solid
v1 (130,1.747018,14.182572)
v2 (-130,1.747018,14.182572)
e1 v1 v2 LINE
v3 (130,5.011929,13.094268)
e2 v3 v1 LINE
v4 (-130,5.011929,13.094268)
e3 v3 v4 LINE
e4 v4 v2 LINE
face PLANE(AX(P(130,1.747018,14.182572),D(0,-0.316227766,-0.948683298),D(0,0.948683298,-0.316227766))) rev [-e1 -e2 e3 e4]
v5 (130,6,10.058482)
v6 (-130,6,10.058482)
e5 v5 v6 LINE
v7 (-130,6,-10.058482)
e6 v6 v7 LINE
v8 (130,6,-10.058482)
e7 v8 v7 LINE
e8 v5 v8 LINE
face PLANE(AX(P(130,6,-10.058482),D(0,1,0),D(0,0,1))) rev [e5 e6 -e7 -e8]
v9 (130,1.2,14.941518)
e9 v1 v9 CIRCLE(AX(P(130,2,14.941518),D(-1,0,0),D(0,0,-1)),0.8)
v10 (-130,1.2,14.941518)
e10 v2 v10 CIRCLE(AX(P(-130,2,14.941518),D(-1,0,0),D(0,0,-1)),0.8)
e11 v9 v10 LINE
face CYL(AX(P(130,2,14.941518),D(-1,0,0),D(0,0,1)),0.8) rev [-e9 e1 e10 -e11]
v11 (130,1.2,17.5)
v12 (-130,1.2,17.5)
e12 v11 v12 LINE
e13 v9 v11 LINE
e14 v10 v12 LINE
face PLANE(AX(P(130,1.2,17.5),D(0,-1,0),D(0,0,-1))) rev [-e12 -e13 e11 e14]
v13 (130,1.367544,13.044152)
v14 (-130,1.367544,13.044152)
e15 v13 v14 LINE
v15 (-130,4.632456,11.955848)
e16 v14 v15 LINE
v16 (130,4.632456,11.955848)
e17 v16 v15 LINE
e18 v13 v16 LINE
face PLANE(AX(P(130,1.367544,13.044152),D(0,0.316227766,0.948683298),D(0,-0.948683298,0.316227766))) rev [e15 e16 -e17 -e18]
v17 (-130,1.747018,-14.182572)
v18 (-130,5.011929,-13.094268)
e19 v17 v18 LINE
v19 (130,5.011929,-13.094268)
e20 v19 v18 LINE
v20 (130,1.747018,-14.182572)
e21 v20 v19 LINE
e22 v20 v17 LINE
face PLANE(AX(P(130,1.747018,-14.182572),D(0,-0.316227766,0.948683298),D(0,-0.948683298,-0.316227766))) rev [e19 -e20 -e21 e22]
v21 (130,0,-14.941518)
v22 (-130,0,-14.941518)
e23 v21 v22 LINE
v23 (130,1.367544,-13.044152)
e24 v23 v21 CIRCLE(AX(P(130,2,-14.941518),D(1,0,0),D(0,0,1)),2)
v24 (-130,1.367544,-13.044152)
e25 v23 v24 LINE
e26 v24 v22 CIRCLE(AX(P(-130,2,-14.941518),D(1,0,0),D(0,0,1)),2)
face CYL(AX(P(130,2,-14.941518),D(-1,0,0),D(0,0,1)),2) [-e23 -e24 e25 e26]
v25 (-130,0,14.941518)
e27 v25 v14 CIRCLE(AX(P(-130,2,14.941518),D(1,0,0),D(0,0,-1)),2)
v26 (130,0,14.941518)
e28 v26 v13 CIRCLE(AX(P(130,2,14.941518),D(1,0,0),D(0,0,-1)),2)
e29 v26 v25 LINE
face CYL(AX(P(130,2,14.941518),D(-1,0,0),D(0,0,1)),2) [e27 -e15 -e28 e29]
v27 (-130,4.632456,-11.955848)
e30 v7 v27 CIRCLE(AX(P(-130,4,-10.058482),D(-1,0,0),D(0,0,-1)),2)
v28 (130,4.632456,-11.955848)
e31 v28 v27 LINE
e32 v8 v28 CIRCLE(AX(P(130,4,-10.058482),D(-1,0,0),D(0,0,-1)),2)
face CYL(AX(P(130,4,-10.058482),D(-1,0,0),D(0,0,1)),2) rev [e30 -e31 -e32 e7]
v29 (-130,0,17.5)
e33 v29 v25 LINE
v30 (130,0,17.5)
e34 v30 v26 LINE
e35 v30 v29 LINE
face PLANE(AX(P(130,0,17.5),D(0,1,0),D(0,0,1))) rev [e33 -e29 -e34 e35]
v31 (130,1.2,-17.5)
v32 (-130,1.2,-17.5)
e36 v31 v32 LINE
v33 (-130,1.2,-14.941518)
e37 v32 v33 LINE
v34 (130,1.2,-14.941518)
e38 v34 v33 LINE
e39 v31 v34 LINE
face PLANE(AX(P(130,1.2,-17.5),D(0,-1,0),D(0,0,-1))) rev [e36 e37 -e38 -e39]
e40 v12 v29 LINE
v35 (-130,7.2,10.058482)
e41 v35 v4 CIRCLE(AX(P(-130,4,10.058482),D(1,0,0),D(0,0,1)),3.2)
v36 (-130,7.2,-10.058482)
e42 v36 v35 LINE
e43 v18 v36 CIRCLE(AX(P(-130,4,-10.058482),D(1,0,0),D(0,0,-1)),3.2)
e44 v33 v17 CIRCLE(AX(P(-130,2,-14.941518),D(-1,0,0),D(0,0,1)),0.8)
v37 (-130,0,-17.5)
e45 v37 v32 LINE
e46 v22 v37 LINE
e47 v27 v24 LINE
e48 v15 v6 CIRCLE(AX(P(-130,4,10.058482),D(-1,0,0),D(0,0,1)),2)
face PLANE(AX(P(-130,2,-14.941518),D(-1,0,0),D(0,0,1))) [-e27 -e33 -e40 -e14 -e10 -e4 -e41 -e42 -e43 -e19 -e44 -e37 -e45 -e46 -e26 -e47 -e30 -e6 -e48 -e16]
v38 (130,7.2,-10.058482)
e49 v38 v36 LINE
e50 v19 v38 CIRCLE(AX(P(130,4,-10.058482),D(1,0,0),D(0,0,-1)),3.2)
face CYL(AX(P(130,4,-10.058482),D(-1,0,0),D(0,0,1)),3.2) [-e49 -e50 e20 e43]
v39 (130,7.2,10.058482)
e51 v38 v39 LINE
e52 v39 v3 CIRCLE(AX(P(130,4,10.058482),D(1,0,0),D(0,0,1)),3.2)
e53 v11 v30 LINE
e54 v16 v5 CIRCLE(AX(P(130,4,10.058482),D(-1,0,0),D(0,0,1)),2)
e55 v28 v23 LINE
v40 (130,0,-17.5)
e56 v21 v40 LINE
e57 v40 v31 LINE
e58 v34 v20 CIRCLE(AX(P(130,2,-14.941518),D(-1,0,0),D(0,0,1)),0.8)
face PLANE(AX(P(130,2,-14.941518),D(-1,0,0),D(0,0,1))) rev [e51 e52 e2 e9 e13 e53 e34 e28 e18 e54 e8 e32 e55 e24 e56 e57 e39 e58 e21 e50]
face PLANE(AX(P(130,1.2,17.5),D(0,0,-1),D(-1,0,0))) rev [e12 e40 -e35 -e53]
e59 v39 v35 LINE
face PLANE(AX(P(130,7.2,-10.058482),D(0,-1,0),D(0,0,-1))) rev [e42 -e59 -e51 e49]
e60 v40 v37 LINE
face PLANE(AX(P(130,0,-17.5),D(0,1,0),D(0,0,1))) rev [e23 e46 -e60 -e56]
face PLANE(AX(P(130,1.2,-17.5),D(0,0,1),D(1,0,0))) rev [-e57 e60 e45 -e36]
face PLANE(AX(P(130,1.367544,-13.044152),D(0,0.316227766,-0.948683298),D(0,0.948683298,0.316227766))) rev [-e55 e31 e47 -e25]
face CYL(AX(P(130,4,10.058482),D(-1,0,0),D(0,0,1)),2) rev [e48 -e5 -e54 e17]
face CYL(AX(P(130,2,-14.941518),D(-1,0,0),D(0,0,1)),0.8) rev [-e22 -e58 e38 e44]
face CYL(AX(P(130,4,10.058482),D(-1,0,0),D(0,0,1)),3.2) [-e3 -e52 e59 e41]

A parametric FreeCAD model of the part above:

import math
import FreeCAD as App
import Part
import Sketcher

doc = App.newDocument("Part")
body = doc.addObject("PartDesign::Body", "Body")

# Sketch on YZ plane
sketch1 = body.newObject("Sketcher::SketchObject", "Sketch")
sketch1.AttachmentSupport = (doc.getObject("YZ_Plane"), [""])
sketch1.MapMode = "FlatFace"
sketch1.addGeometry(Part.LineSegment(App.Vector(0, -14.941518, 0), App.Vector(0, -17.5, 0)), False)
sketch1.addGeometry(Part.LineSegment(App.Vector(0, -17.5, 0), App.Vector(1.2, -17.5, 0)), False)
sketch1.addGeometry(Part.LineSegment(App.Vector(1.2, -17.5, 0), App.Vector(1.2, -14.941518, 0)), False)
sketch1.addGeometry(Part.ArcOfCircle(Part.Circle(App.Vector(2, -14.941518, 0), App.Vector(0, 0, 1), 0.8), math.radians(108.434949), math.radians(180)), False)
sketch1.addGeometry(Part.LineSegment(App.Vector(1.747018, -14.182572, 0), App.Vector(5.011929, -13.094268, 0)), False)
sketch1.addGeometry(Part.ArcOfCircle(Part.Circle(App.Vector(4, -10.058482, 0), App.Vector(0, 0, 1), 3.2), math.radians(-71.565051), math.radians(0)), False)
sketch1.addGeometry(Part.LineSegment(App.Vector(7.2, -10.058482, 0), App.Vector(7.2, 10.058482, 0)), False)
sketch1.addGeometry(Part.ArcOfCircle(Part.Circle(App.Vector(4, 10.058482, 0), App.Vector(0, 0, 1), 3.2), math.radians(0), math.radians(71.565051)), False)
sketch1.addGeometry(Part.LineSegment(App.Vector(5.011929, 13.094268, 0), App.Vector(1.747018, 14.182572, 0)), False)
sketch1.addGeometry(Part.ArcOfCircle(Part.Circle(App.Vector(2, 14.941518, 0), App.Vector(0, 0, 1), 0.8), math.radians(180), math.radians(251.565051)), False)
sketch1.addGeometry(Part.LineSegment(App.Vector(1.2, 14.941518, 0), App.Vector(1.2, 17.5, 0)), False)
sketch1.addGeometry(Part.LineSegment(App.Vector(1.2, 17.5, 0), App.Vector(0, 17.5, 0)), False)
sketch1.addGeometry(Part.LineSegment(App.Vector(0, 17.5, 0), App.Vector(0, 14.941518, 0)), False)
sketch1.addGeometry(Part.ArcOfCircle(Part.Circle(App.Vector(2, 14.941518, 0), App.Vector(0, 0, 1), 2), math.radians(-180), math.radians(-108.434949)), False)
sketch1.addGeometry(Part.LineSegment(App.Vector(1.367544, 13.044152, 0), App.Vector(4.632456, 11.955848, 0)), False)
sketch1.addGeometry(Part.ArcOfCircle(Part.Circle(App.Vector(4, 10.058482, 0), App.Vector(0, 0, 1), 2), math.radians(0), math.radians(71.565051)), False)
sketch1.addGeometry(Part.LineSegment(App.Vector(6, 10.058482, 0), App.Vector(6, -10.058482, 0)), False)
sketch1.addGeometry(Part.ArcOfCircle(Part.Circle(App.Vector(4, -10.058482, 0), App.Vector(0, 0, 1), 2), math.radians(-71.565051), math.radians(0)), False)
sketch1.addGeometry(Part.LineSegment(App.Vector(4.632456, -11.955848, 0), App.Vector(1.367544, -13.044152, 0)), False)
sketch1.addGeometry(Part.ArcOfCircle(Part.Circle(App.Vector(2, -14.941518, 0), App.Vector(0, 0, 1), 2), math.radians(108.434949), math.radians(180)), False)
sketch1.addConstraint(Sketcher.Constraint("Coincident", 0, 2, 1, 1))
sketch1.addConstraint(Sketcher.Constraint("Coincident", 1, 2, 2, 1))
sketch1.addConstraint(Sketcher.Constraint("Tangent", 2, 2, 3, 2))
sketch1.addConstraint(Sketcher.Constraint("Tangent", 3, 1, 4, 1))
sketch1.addConstraint(Sketcher.Constraint("Tangent", 4, 2, 5, 1))
sketch1.addConstraint(Sketcher.Constraint("Tangent", 5, 2, 6, 1))
sketch1.addConstraint(Sketcher.Constraint("Tangent", 6, 2, 7, 1))
sketch1.addConstraint(Sketcher.Constraint("Tangent", 7, 2, 8, 1))
sketch1.addConstraint(Sketcher.Constraint("Tangent", 8, 2, 9, 2))
sketch1.addConstraint(Sketcher.Constraint("Tangent", 9, 1, 10, 1))
sketch1.addConstraint(Sketcher.Constraint("Coincident", 10, 2, 11, 1))
sketch1.addConstraint(Sketcher.Constraint("Coincident", 11, 2, 12, 1))
sketch1.addConstraint(Sketcher.Constraint("Tangent", 12, 2, 13, 1))
sketch1.addConstraint(Sketcher.Constraint("Tangent", 13, 2, 14, 1))
sketch1.addConstraint(Sketcher.Constraint("Tangent", 14, 2, 15, 2))
sketch1.addConstraint(Sketcher.Constraint("Tangent", 15, 1, 16, 1))
sketch1.addConstraint(Sketcher.Constraint("Tangent", 16, 2, 17, 2))
sketch1.addConstraint(Sketcher.Constraint("Tangent", 17, 1, 18, 1))
sketch1.addConstraint(Sketcher.Constraint("Tangent", 18, 2, 19, 1))
sketch1.addConstraint(Sketcher.Constraint("Tangent", 19, 2, 0, 1))
sketch1.addConstraint(Sketcher.Constraint("Vertical", 0))
sketch1.addConstraint(Sketcher.Constraint("Horizontal", 1))
sketch1.addConstraint(Sketcher.Constraint("Vertical", 2))
sketch1.addConstraint(Sketcher.Constraint("Vertical", 6))
sketch1.addConstraint(Sketcher.Constraint("Vertical", 10))
sketch1.addConstraint(Sketcher.Constraint("Horizontal", 11))
sketch1.addConstraint(Sketcher.Constraint("Vertical", 12))
sketch1.addConstraint(Sketcher.Constraint("Vertical", 16))
sketch1.addConstraint(Sketcher.Constraint("Coincident", 13, 3, 9, 3))
sketch1.addConstraint(Sketcher.Constraint("Coincident", 15, 3, 7, 3))
sketch1.addConstraint(Sketcher.Constraint("Coincident", 17, 3, 5, 3))
sketch1.addConstraint(Sketcher.Constraint("Coincident", 19, 3, 3, 3))
sketch1.addConstraint(Sketcher.Constraint("Equal", 5, 7))
sketch1.addConstraint(Sketcher.Constraint("Equal", 3, 9))
sketch1.addConstraint(Sketcher.Constraint("Equal", 13, 15))
sketch1.addConstraint(Sketcher.Constraint("Equal", 17, 19))
sketch1.addConstraint(Sketcher.Constraint("Symmetric", 0, 2, 11, 2, -1, 1))
sketch1.addConstraint(Sketcher.Constraint("Symmetric", 3, 3, 9, 3, -1))
sketch1.addConstraint(Sketcher.Constraint("Parallel", 8, 14))
sketch1.addConstraint(Sketcher.Constraint("Vertical", 4, 2, 7, 2))
sketch1.addConstraint(Sketcher.Constraint("Radius", 13, 2.0))
sketch1.addConstraint(Sketcher.Constraint("Radius", 3, 0.8))
sketch1.addConstraint(Sketcher.Constraint("DistanceX", -1, 1, 5, 3, 4.0))
sketch1.addConstraint(Sketcher.Constraint("DistanceY", 3, 3, 7, 3, 25.0))
sketch1.addConstraint(Sketcher.Constraint("DistanceY", 0, 2, -1, 1, 17.5))
sketch1.addConstraint(Sketcher.Constraint("DistanceY", 0, 2, 0, 1, 2.558482))
pad1 = body.newObject("PartDesign::Pad", "Pad")
pad1.Profile = sketch1
pad1.Length = 260
pad1.Midplane = True

doc.recompute()
